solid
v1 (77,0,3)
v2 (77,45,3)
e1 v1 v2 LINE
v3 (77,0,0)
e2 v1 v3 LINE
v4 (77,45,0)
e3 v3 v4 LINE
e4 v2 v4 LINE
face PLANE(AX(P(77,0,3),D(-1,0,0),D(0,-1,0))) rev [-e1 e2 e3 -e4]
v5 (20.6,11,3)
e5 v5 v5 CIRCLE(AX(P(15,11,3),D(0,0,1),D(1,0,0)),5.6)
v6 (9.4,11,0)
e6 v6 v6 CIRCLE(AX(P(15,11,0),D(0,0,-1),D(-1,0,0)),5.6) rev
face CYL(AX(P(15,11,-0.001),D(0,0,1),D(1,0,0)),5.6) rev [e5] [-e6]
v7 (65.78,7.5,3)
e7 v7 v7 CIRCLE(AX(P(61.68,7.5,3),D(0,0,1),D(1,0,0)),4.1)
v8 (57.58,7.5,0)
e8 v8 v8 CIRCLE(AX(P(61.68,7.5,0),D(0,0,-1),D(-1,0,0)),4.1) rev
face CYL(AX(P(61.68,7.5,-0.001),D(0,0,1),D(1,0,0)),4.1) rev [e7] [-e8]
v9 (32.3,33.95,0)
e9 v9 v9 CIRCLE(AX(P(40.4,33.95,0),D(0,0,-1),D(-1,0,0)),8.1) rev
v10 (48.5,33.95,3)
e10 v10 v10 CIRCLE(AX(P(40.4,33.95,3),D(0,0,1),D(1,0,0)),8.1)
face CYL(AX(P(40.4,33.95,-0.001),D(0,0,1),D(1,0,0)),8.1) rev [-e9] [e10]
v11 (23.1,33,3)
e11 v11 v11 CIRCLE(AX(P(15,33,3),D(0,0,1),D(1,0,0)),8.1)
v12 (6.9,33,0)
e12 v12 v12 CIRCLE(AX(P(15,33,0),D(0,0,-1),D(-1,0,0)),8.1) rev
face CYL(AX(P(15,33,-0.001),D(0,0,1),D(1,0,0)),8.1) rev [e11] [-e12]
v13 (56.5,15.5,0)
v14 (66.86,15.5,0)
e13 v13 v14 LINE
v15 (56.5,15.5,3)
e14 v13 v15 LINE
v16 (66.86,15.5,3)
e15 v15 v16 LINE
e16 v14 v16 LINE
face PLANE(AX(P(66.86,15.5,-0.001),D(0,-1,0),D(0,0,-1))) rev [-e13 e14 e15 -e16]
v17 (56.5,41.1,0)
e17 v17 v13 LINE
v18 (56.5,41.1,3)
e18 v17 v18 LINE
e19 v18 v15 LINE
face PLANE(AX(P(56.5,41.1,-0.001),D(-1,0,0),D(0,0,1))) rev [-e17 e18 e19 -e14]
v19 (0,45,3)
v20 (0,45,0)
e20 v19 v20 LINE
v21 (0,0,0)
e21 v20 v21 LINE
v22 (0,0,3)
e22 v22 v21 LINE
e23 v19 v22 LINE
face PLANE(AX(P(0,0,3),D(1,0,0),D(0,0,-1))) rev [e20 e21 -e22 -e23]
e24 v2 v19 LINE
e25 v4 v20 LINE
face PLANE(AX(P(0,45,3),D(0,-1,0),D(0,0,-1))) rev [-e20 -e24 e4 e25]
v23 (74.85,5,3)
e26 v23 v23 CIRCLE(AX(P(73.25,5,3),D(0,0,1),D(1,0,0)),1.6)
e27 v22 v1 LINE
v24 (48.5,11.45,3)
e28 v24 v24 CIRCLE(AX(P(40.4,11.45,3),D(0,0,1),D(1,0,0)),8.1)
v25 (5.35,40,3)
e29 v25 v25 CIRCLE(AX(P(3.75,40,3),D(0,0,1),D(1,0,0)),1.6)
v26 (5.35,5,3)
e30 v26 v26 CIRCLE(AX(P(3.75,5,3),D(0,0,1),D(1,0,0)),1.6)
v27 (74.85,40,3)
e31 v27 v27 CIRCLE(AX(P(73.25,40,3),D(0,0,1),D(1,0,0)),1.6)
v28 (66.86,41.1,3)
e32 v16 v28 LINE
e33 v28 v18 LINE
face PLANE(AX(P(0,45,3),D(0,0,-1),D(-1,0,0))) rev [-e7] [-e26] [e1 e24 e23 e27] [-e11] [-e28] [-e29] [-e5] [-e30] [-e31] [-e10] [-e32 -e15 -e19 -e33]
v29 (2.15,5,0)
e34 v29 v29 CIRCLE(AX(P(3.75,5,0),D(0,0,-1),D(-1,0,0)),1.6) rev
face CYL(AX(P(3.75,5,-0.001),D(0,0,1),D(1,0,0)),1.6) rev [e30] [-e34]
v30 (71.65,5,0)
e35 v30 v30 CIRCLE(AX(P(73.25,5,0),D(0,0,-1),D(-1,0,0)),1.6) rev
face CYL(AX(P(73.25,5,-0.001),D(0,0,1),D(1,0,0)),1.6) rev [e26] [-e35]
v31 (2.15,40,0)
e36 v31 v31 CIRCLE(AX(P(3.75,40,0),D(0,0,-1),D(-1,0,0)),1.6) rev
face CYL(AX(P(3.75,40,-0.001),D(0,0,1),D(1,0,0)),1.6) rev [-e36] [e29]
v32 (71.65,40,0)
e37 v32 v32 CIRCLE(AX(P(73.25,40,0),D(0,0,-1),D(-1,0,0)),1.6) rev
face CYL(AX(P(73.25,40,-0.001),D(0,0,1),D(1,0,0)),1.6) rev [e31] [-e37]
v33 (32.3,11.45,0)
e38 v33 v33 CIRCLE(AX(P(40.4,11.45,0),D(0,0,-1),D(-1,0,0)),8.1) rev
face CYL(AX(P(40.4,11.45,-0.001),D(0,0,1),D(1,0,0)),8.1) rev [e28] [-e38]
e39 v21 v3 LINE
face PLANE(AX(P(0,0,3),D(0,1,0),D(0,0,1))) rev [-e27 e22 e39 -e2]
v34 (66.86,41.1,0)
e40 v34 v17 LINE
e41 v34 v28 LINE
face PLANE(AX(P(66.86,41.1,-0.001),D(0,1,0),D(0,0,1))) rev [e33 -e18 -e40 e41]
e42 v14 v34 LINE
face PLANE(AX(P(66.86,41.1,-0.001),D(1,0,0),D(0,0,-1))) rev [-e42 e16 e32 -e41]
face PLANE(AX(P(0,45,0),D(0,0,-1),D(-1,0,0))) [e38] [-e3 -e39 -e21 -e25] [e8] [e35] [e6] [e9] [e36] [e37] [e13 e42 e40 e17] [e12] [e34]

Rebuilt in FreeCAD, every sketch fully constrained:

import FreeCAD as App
import Part
import Sketcher

doc = App.newDocument("Part")
body = doc.addObject("PartDesign::Body", "Body")

sketch1 = body.newObject("Sketcher::SketchObject", "Sketch")
sketch1.AttachmentSupport = (doc.getObject("XY_Plane"), [""])
sketch1.MapMode = "FlatFace"
sketch1.addGeometry(Part.LineSegment(App.Vector(0, 45, 0), App.Vector(0, 0, 0)), False)
sketch1.addGeometry(Part.LineSegment(App.Vector(0, 0, 0), App.Vector(77, 0, 0)), False)
sketch1.addGeometry(Part.LineSegment(App.Vector(77, 0, 0), App.Vector(77, 45, 0)), False)
sketch1.addGeometry(Part.LineSegment(App.Vector(77, 45, 0), App.Vector(0, 45, 0)), False)
sketch1.addConstraint(Sketcher.Constraint("Coincident", 0, 2, 1, 1))
sketch1.addConstraint(Sketcher.Constraint("Coincident", 1, 2, 2, 1))
sketch1.addConstraint(Sketcher.Constraint("Coincident", 2, 2, 3, 1))
sketch1.addConstraint(Sketcher.Constraint("Coincident", 3, 2, 0, 1))
sketch1.addConstraint(Sketcher.Constraint("Vertical", 0))
sketch1.addConstraint(Sketcher.Constraint("Horizontal", 1))
sketch1.addConstraint(Sketcher.Constraint("Vertical", 2))
sketch1.addConstraint(Sketcher.Constraint("Horizontal", 3))
sketch1.addConstraint(Sketcher.Constraint("Coincident", 0, 2, -1, 1))
sketch1.addConstraint(Sketcher.Constraint("DistanceX", 1, 1, 1, 2, 77.0))
sketch1.addConstraint(Sketcher.Constraint("DistanceY", 0, 2, 0, 1, 45.0))
pad1 = body.newObject("PartDesign::Pad", "Pad")
pad1.Profile = sketch1
pad1.Length = 3

sketch2 = body.newObject("Sketcher::SketchObject", "Sketch001")
sketch2.AttachmentSupport = (doc.getObject("XY_Plane"), [""])
sketch2.MapMode = "FlatFace"
sketch2.AttachmentOffset = App.Placement(App.Vector(0, 0, 3), App.Rotation())
sketch2.addGeometry(Part.Circle(App.Vector(15, 33, 0), App.Vector(0, 0, 1), 8.1), False)
sketch2.addConstraint(Sketcher.Constraint("Diameter", 0, 16.2))
sketch2.addConstraint(Sketcher.Constraint("DistanceX", -1, 1, 0, 3, 15.0))
sketch2.addConstraint(Sketcher.Constraint("DistanceY", -1, 1, 0, 3, 33.0))
pocket1 = body.newObject("PartDesign::Pocket", "Pocket")
pocket1.Profile = sketch2
pocket1.Type = "UpToFirst"

sketch3 = body.newObject("Sketcher::SketchObject", "Sketch002")
sketch3.AttachmentSupport = (doc.getObject("XY_Plane"), [""])
sketch3.MapMode = "FlatFace"
sketch3.AttachmentOffset = App.Placement(App.Vector(0, 0, 3), App.Rotation())
sketch3.addGeometry(Part.Circle(App.Vector(15, 11, 0), App.Vector(0, 0, 1), 5.6), False)
sketch3.addConstraint(Sketcher.Constraint("Diameter", 0, 11.2))
sketch3.addConstraint(Sketcher.Constraint("DistanceX", -1, 1, 0, 3, 15.0))
sketch3.addConstraint(Sketcher.Constraint("DistanceY", -1, 1, 0, 3, 11.0))
pocket2 = body.newObject("PartDesign::Pocket", "Pocket001")
pocket2.Profile = sketch3
pocket2.Type = "UpToFirst"

sketch4 = body.newObject("Sketcher::SketchObject", "Sketch003")
sketch4.AttachmentSupport = (doc.getObject("XY_Plane"), [""])
sketch4.MapMode = "FlatFace"
sketch4.AttachmentOffset = App.Placement(App.Vector(0, 0, 3), App.Rotation())
sketch4.addGeometry(Part.Circle(App.Vector(61.68, 7.5, 0), App.Vector(0, 0, 1), 4.1), False)
sketch4.addConstraint(Sketcher.Constraint("Diameter", 0, 8.2))
sketch4.addConstraint(Sketcher.Constraint("DistanceY", -1, 1, 0, 3, 7.5))
sketch4.addConstraint(Sketcher.Constraint("DistanceX", -1, 1, 0, 3, 61.68))
pocket3 = body.newObject("PartDesign::Pocket", "Pocket002")
pocket3.Profile = sketch4
pocket3.Type = "UpToFirst"

sketch5 = body.newObject("Sketcher::SketchObject", "Sketch004")
sketch5.AttachmentSupport = (doc.getObject("XY_Plane"), [""])
sketch5.MapMode = "FlatFace"
sketch5.AttachmentOffset = App.Placement(App.Vector(0, 0, 3), App.Rotation())
sketch5.addGeometry(Part.Circle(App.Vector(40.4, 33.95, 0), App.Vector(0, 0, 1), 8.1), False)
sketch5.addConstraint(Sketcher.Constraint("Diameter", 0, 16.2))
sketch5.addConstraint(Sketcher.Constraint("DistanceX", -1, 1, 0, 3, 40.4))
sketch5.addConstraint(Sketcher.Constraint("DistanceY", -1, 1, 0, 3, 33.95))
pocket4 = body.newObject("PartDesign::Pocket", "Pocket003")
pocket4.Profile = sketch5
pocket4.Type = "UpToFirst"

sketch6 = body.newObject("Sketcher::SketchObject", "Sketch005")
sketch6.AttachmentSupport = (doc.getObject("XY_Plane"), [""])
sketch6.MapMode = "FlatFace"
sketch6.AttachmentOffset = App.Placement(App.Vector(0, 0, 3), App.Rotation())
sketch6.addGeometry(Part.Circle(App.Vector(40.4, 11.45, 0), App.Vector(0, 0, 1), 8.1), False)
sketch6.addConstraint(Sketcher.Constraint("Diameter", 0, 16.2))
sketch6.addConstraint(Sketcher.Constraint("DistanceX", -1, 1, 0, 3, 40.4))
sketch6.addConstraint(Sketcher.Constraint("DistanceY", -1, 1, 0, 3, 11.45))
pocket5 = body.newObject("PartDesign::Pocket", "Pocket004")
pocket5.Profile = sketch6
pocket5.Type = "UpToFirst"

sketch7 = body.newObject("Sketcher::SketchObject", "Sketch006")
sketch7.AttachmentSupport = (doc.getObject("XY_Plane"), [""])
sketch7.MapMode = "FlatFace"
sketch7.AttachmentOffset = App.Placement(App.Vector(0, 0, 3), App.Rotation())
sketch7.addGeometry(Part.Circle(App.Vector(73.25, 40, 0), App.Vector(0, 0, 1), 1.6), False)
sketch7.addConstraint(Sketcher.Constraint("Diameter", 0, 3.2))
sketch7.addConstraint(Sketcher.Constraint("DistanceY", -1, 1, 0, 3, 40.0))
sketch7.addConstraint(Sketcher.Constraint("DistanceX", -1, 1, 0, 3, 73.25))
pocket6 = body.newObject("PartDesign::Pocket", "Pocket005")
pocket6.Profile = sketch7
pocket6.Type = "UpToFirst"

sketch8 = body.newObject("Sketcher::SketchObject", "Sketch007")
sketch8.AttachmentSupport = (doc.getObject("XY_Plane"), [""])
sketch8.MapMode = "FlatFace"
sketch8.AttachmentOffset = App.Placement(App.Vector(0, 0, 3), App.Rotation())
sketch8.addGeometry(Part.Circle(App.Vector(73.25, 5, 0), App.Vector(0, 0, 1), 1.6), False)
sketch8.addConstraint(Sketcher.Constraint("Diameter", 0, 3.2))
sketch8.addConstraint(Sketcher.Constraint("DistanceY", -1, 1, 0, 3, 5.0))
sketch8.addConstraint(Sketcher.Constraint("DistanceX", -1, 1, 0, 3, 73.25))
pocket7 = body.newObject("PartDesign::Pocket", "Pocket006")
pocket7.Profile = sketch8
pocket7.Type = "UpToFirst"

sketch9 = body.newObject("Sketcher::SketchObject", "Sketch008")
sketch9.AttachmentSupport = (doc.getObject("XY_Plane"), [""])
sketch9.MapMode = "FlatFace"
sketch9.AttachmentOffset = App.Placement(App.Vector(0, 0, 3), App.Rotation())
sketch9.addGeometry(Part.Circle(App.Vector(3.75, 5, 0), App.Vector(0, 0, 1), 1.6), False)
sketch9.addConstraint(Sketcher.Constraint("Diameter", 0, 3.2))
sketch9.addConstraint(Sketcher.Constraint("DistanceY", -1, 1, 0, 3, 5.0))
sketch9.addConstraint(Sketcher.Constraint("DistanceX", -1, 1, 0, 3, 3.75))
pocket8 = body.newObject("PartDesign::Pocket", "Pocket007")
pocket8.Profile = sketch9
pocket8.Type = "UpToFirst"

sketch10 = body.newObject("Sketcher::SketchObject", "Sketch009")
sketch10.AttachmentSupport = (doc.getObject("XY_Plane"), [""])
sketch10.MapMode = "FlatFace"
sketch10.AttachmentOffset = App.Placement(App.Vector(0, 0, 3), App.Rotation())
sketch10.addGeometry(Part.Circle(App.Vector(3.75, 40, 0), App.Vector(0, 0, 1), 1.6), False)
sketch10.addConstraint(Sketcher.Constraint("Diameter", 0, 3.2))
sketch10.addConstraint(Sketcher.Constraint("DistanceY", -1, 1, 0, 3, 40.0))
sketch10.addConstraint(Sketcher.Constraint("DistanceX", -1, 1, 0, 3, 3.75))
pocket9 = body.newObject("PartDesign::Pocket", "Pocket008")
pocket9.Profile = sketch10
pocket9.Type = "UpToFirst"

sketch11 = body.newObject("Sketcher::SketchObject", "Sketch010")
sketch11.AttachmentSupport = (doc.getObject("XY_Plane"), [""])
sketch11.MapMode = "FlatFace"
sketch11.AttachmentOffset = App.Placement(App.Vector(0, 0, 3), App.Rotation())
sketch11.addGeometry(Part.LineSegment(App.Vector(56.5, 41.1, 0), App.Vector(56.5, 15.5, 0)), False)
sketch11.addGeometry(Part.LineSegment(App.Vector(56.5, 15.5, 0), App.Vector(66.86, 15.5, 0)), False)
sketch11.addGeometry(Part.LineSegment(App.Vector(66.86, 15.5, 0), App.Vector(66.86, 41.1, 0)), False)
sketch11.addGeometry(Part.LineSegment(App.Vector(66.86, 41.1, 0), App.Vector(56.5, 41.1, 0)), False)
sketch11.addConstraint(Sketcher.Constraint("Coincident", 0, 2, 1, 1))
sketch11.addConstraint(Sketcher.Constraint("Coincident", 1, 2, 2, 1))
sketch11.addConstraint(Sketcher.Constraint("Coincident", 2, 2, 3, 1))
sketch11.addConstraint(Sketcher.Constraint("Coincident", 3, 2, 0, 1))
sketch11.addConstraint(Sketcher.Constraint("Vertical", 0))
sketch11.addConstraint(Sketcher.Constraint("Horizontal", 1))
sketch11.addConstraint(Sketcher.Constraint("Vertical", 2))
sketch11.addConstraint(Sketcher.Constraint("Horizontal", 3))
sketch11.addConstraint(Sketcher.Constraint("DistanceY", 0, 2, 0, 1, 25.6))
sketch11.addConstraint(Sketcher.Constraint("DistanceX", 1, 1, 1, 2, 10.36))
sketch11.addConstraint(Sketcher.Constraint("DistanceX", -1, 1, 0, 2, 56.5))
sketch11.addConstraint(Sketcher.Constraint("DistanceY", -1, 1, 0, 2, 15.5))
pocket10 = body.newObject("PartDesign::Pocket", "Pocket009")
pocket10.Profile = sketch11
pocket10.Type = "UpToFirst"

doc.recompute()
